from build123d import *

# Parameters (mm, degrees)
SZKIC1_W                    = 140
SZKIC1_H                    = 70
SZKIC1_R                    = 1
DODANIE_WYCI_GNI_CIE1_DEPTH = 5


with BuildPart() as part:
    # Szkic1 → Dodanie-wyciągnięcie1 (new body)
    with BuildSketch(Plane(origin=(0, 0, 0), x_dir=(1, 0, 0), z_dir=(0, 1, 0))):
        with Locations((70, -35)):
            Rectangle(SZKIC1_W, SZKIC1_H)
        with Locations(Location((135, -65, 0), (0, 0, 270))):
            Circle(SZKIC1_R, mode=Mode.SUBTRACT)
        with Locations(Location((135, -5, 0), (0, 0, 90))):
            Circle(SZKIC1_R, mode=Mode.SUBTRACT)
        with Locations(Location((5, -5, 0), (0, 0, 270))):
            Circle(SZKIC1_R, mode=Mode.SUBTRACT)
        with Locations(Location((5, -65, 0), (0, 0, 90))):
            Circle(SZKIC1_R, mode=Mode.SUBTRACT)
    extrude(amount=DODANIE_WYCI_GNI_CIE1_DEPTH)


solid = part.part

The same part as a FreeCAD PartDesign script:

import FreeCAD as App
import Part
import Sketcher

V = App.Vector


def add_polygon(sketch, points):
    """Adds a closed chain of lines whose ends are joined by coincident constraints."""
    first, n = sketch.GeometryCount, len(points)
    for a, b in zip(points, points[1:] + points[:1]):
        sketch.addGeometry(Part.LineSegment(App.Vector(*a, 0), App.Vector(*b, 0)), False)
    for i in range(n):
        sketch.addConstraint(Sketcher.Constraint("Coincident", first + i, 2, first + (i + 1) % n, 1))

doc = App.newDocument("Part")
body = doc.addObject("PartDesign::Body", "Body")

# Sketch on XZ plane
sketch1 = doc.addObject("Sketcher::SketchObject", "Sketch")
body.addObject(sketch1)
sketch1.AttachmentSupport = (doc.XZ_Plane, [""])
sketch1.MapMode = "FlatFace"
add_polygon(sketch1, [(0, 0), (0, 70), (140, 70), (140, 0)])  # lines 0-3
sketch1.addGeometry(Part.Circle(V(5, 65, 0), V(0, 0, 1), 1), False)  # 4
sketch1.addGeometry(Part.Circle(V(135, 65, 0), V(0, 0, 1), 1), False)  # 5
sketch1.addGeometry(Part.Circle(V(5, 5, 0), V(0, 0, 1), 1), False)  # 6
sketch1.addGeometry(Part.Circle(V(135, 5, 0), V(0, 0, 1), 1), False)  # 7
sketch1.addConstraint(Sketcher.Constraint("Vertical", 0))
sketch1.addConstraint(Sketcher.Constraint("Horizontal", 1))
sketch1.addConstraint(Sketcher.Constraint("Vertical", 2))
sketch1.addConstraint(Sketcher.Constraint("Horizontal", 3))
sketch1.addConstraint(Sketcher.Constraint("Coincident", 3, 2, -1, 1))
sketch1.addConstraint(Sketcher.Constraint("Equal", 4, 5))
sketch1.addConstraint(Sketcher.Constraint("Equal", 5, 6))
sketch1.addConstraint(Sketcher.Constraint("Equal", 6, 7))
sketch1.addConstraint(Sketcher.Constraint("Horizontal", 4, 3, 5, 3))
sketch1.addConstraint(Sketcher.Constraint("Horizontal", 6, 3, 7, 3))
sketch1.addConstraint(Sketcher.Constraint("Vertical", 4, 3, 6, 3))
sketch1.addConstraint(Sketcher.Constraint("Vertical", 5, 3, 7, 3))
sketch1.addConstraint(Sketcher.Constraint("Diameter", 4, 2.0))
sketch1.addConstraint(Sketcher.Constraint("DistanceX", 1, 1, 1, 2, 140.0))
sketch1.addConstraint(Sketcher.Constraint("DistanceY", 0, 1, 0, 2, 70.0))
sketch1.addConstraint(Sketcher.Constraint("DistanceX", -1, 1, 4, 3, 5.0))
sketch1.addConstraint(Sketcher.Constraint("DistanceY", -1, 1, 4, 3, 65.0))
sketch1.addConstraint(Sketcher.Constraint("DistanceX", -1, 1, 5, 3, 135.0))
sketch1.addConstraint(Sketcher.Constraint("DistanceY", -1, 1, 6, 3, 5.0))
pad1 = doc.addObject("PartDesign::Pad", "Pad")
body.addObject(pad1)
pad1.Profile = sketch1
pad1.Length = 5
pad1.Reversed = True

doc.recompute()
